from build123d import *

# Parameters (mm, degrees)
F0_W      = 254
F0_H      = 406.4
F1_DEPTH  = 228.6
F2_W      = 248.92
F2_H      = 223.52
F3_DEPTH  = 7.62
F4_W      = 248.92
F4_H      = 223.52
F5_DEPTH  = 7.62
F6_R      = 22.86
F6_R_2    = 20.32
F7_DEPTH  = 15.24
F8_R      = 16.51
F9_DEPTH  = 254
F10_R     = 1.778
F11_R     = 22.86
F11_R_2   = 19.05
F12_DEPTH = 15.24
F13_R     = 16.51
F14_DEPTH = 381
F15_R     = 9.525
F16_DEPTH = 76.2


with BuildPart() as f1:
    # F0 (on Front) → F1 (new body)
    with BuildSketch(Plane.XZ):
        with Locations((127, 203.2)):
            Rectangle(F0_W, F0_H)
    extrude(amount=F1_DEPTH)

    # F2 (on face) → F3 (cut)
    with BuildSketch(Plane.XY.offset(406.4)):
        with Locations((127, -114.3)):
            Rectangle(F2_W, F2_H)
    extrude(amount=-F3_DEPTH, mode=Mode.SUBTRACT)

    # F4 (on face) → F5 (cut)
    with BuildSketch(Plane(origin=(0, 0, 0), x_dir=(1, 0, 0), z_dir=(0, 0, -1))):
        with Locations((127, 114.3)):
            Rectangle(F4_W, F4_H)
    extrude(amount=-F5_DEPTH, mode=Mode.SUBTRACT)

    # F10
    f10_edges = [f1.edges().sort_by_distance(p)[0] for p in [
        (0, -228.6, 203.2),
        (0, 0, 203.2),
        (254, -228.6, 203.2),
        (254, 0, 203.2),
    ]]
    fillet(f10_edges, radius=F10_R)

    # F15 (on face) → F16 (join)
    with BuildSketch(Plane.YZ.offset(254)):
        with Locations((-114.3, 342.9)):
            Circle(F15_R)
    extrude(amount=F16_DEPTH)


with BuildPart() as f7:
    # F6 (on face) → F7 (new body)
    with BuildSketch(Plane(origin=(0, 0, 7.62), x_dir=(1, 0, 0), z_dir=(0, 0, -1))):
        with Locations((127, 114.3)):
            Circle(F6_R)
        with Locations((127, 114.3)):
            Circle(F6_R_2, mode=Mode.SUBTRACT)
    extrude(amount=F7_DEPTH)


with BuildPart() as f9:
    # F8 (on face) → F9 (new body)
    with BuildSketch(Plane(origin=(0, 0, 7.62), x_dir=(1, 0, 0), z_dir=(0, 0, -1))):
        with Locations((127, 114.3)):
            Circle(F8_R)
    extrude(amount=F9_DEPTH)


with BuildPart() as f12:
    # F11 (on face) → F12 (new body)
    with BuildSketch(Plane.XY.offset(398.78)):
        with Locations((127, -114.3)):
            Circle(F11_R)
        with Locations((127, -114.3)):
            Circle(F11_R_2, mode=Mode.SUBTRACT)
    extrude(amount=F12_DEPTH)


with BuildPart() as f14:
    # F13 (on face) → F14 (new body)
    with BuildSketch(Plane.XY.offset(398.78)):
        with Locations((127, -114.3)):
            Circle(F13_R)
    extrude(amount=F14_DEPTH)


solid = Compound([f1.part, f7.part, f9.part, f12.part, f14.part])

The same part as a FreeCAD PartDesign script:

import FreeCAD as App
import Part
import Sketcher
Q = App.Units.Quantity


def edges_at(feature, points):
    """Names of the edges that pass closest to the given points."""
    edges = feature.Shape.Edges
    near = lambda p: min(range(len(edges)), key=lambda i: edges[i].distToShape(Part.Vertex(*p))[0])
    return sorted({f"Edge{near(p) + 1}" for p in points})

doc = App.newDocument("Part")
body = doc.addObject("PartDesign::Body", "Body")

# Sketch on XZ plane
sketch1 = body.newObject("Sketcher::SketchObject", "Sketch")
sketch1.AttachmentSupport = (doc.getObject("XZ_Plane"), [""])
sketch1.MapMode = "FlatFace"
sketch1.addGeometry(Part.LineSegment(App.Vector(0, 406.4, 0), App.Vector(0, 0, 0)), False)
sketch1.addGeometry(Part.LineSegment(App.Vector(0, 0, 0), App.Vector(254, 0, 0)), False)
sketch1.addGeometry(Part.LineSegment(App.Vector(254, 0, 0), App.Vector(254, 406.4, 0)), False)
sketch1.addGeometry(Part.LineSegment(App.Vector(254, 406.4, 0), App.Vector(0, 406.4, 0)), False)
sketch1.addConstraint(Sketcher.Constraint("Coincident", 0, 2, 1, 1))
sketch1.addConstraint(Sketcher.Constraint("Coincident", 1, 2, 2, 1))
sketch1.addConstraint(Sketcher.Constraint("Coincident", 2, 2, 3, 1))
sketch1.addConstraint(Sketcher.Constraint("Coincident", 3, 2, 0, 1))
sketch1.addConstraint(Sketcher.Constraint("Vertical", 0))
sketch1.addConstraint(Sketcher.Constraint("Horizontal", 1))
sketch1.addConstraint(Sketcher.Constraint("Vertical", 2))
sketch1.addConstraint(Sketcher.Constraint("Horizontal", 3))
sketch1.addConstraint(Sketcher.Constraint("Coincident", 0, 2, -1, 1))
sketch1.addConstraint(Sketcher.Constraint("DistanceX", 1, 1, 1, 2, Q("10 in")))
sketch1.addConstraint(Sketcher.Constraint("DistanceY", 0, 2, 0, 1, Q("16 in")))
pad1 = body.newObject("PartDesign::Pad", "Pad")
pad1.Profile = sketch1
pad1.Length = Q("9 in")

# Sketch on XY plane
sketch2 = body.newObject("Sketcher::SketchObject", "Sketch001")
sketch2.AttachmentSupport = (doc.getObject("XY_Plane"), [""])
sketch2.MapMode = "FlatFace"
sketch2.AttachmentOffset = App.Placement(App.Vector(0, 0, 16 * 25.4), App.Rotation())
sketch2.addGeometry(Part.LineSegment(App.Vector(2.54, -2.54, 0), App.Vector(2.54, -226.06, 0)), False)
sketch2.addGeometry(Part.LineSegment(App.Vector(2.54, -226.06, 0), App.Vector(251.46, -226.06, 0)), False)
sketch2.addGeometry(Part.LineSegment(App.Vector(251.46, -226.06, 0), App.Vector(251.46, -2.54, 0)), False)
sketch2.addGeometry(Part.LineSegment(App.Vector(251.46, -2.54, 0), App.Vector(2.54, -2.54, 0)), False)
sketch2.addConstraint(Sketcher.Constraint("Coincident", 0, 2, 1, 1))
sketch2.addConstraint(Sketcher.Constraint("Coincident", 1, 2, 2, 1))
sketch2.addConstraint(Sketcher.Constraint("Coincident", 2, 2, 3, 1))
sketch2.addConstraint(Sketcher.Constraint("Coincident", 3, 2, 0, 1))
sketch2.addConstraint(Sketcher.Constraint("Vertical", 0))
sketch2.addConstraint(Sketcher.Constraint("Horizontal", 1))
sketch2.addConstraint(Sketcher.Constraint("Vertical", 2))
sketch2.addConstraint(Sketcher.Constraint("Horizontal", 3))
sketch2.addConstraint(Sketcher.Constraint("DistanceX", 1, 1, 1, 2, Q("9.8 in")))
sketch2.addConstraint(Sketcher.Constraint("DistanceY", 0, 2, 0, 1, Q("8.8 in")))
sketch2.addConstraint(Sketcher.Constraint("DistanceX", -1, 1, 0, 2, Q("0.1 in")))
sketch2.addConstraint(Sketcher.Constraint("DistanceY", 0, 2, -1, 1, Q("8.9 in")))
pocket1 = body.newObject("PartDesign::Pocket", "Pocket")
pocket1.Profile = sketch2
pocket1.Length = Q("0.3 in")

# Sketch on XY plane
sketch3 = body.newObject("Sketcher::SketchObject", "Sketch002")
sketch3.AttachmentSupport = (doc.getObject("XY_Plane"), [""])
sketch3.MapMode = "FlatFace"
sketch3.addGeometry(Part.LineSegment(App.Vector(2.54, -226.06, 0), App.Vector(2.54, -2.54, 0)), False)
sketch3.addGeometry(Part.LineSegment(App.Vector(2.54, -2.54, 0), App.Vector(251.46, -2.54, 0)), False)
sketch3.addGeometry(Part.LineSegment(App.Vector(251.46, -2.54, 0), App.Vector(251.46, -226.06, 0)), False)
sketch3.addGeometry(Part.LineSegment(App.Vector(251.46, -226.06, 0), App.Vector(2.54, -226.06, 0)), False)
sketch3.addConstraint(Sketcher.Constraint("Coincident", 0, 2, 1, 1))
sketch3.addConstraint(Sketcher.Constraint("Coincident", 1, 2, 2, 1))
sketch3.addConstraint(Sketcher.Constraint("Coincident", 2, 2, 3, 1))
sketch3.addConstraint(Sketcher.Constraint("Coincident", 3, 2, 0, 1))
sketch3.addConstraint(Sketcher.Constraint("Vertical", 0))
sketch3.addConstraint(Sketcher.Constraint("Horizontal", 1))
sketch3.addConstraint(Sketcher.Constraint("Vertical", 2))
sketch3.addConstraint(Sketcher.Constraint("Horizontal", 3))
sketch3.addConstraint(Sketcher.Constraint("DistanceX", 1, 1, 1, 2, Q("9.8 in")))
sketch3.addConstraint(Sketcher.Constraint("DistanceY", 0, 1, 0, 2, Q("8.8 in")))
sketch3.addConstraint(Sketcher.Constraint("DistanceX", -1, 1, 0, 2, Q("0.1 in")))
sketch3.addConstraint(Sketcher.Constraint("DistanceY", 0, 2, -1, 1, Q("0.1 in")))
pocket2 = body.newObject("PartDesign::Pocket", "Pocket001")
pocket2.Profile = sketch3
pocket2.Length = Q("0.3 in")
pocket2.Reversed = True
doc.recompute()

fillet = body.newObject("PartDesign::Fillet", "Fillet")
fillet.Base = (pocket2, edges_at(pocket2, [
    (0, -228.6, 203.2),
    (0, 0, 203.2),
    (254, -228.6, 203.2),
    (254, 0, 203.2),
]))
fillet.Radius = Q("0.07 in")

# Sketch on YZ plane
sketch4 = body.newObject("Sketcher::SketchObject", "Sketch003")
sketch4.AttachmentSupport = (doc.getObject("YZ_Plane"), [""])
sketch4.MapMode = "FlatFace"
sketch4.AttachmentOffset = App.Placement(App.Vector(0, 0, 10 * 25.4), App.Rotation())
sketch4.addGeometry(Part.Circle(App.Vector(-114.3, 342.9, 0), App.Vector(0, 0, 1), 9.525), False)
sketch4.addConstraint(Sketcher.Constraint("Diameter", 0, Q("0.75 in")))
sketch4.addConstraint(Sketcher.Constraint("DistanceX", 0, 3, -1, 1, Q("4.5 in")))
sketch4.addConstraint(Sketcher.Constraint("DistanceY", -1, 1, 0, 3, Q("13.5 in")))
pad2 = body.newObject("PartDesign::Pad", "Pad001")
pad2.Profile = sketch4
pad2.Length = Q("3 in")
body2 = doc.addObject("PartDesign::Body", "Body001")

# Sketch on XY plane
sketch5 = body2.newObject("Sketcher::SketchObject", "Sketch004")
sketch5.AttachmentSupport = (doc.getObject("XY_Plane001"), [""])
sketch5.MapMode = "FlatFace"
sketch5.AttachmentOffset = App.Placement(App.Vector(0, 0, 0.3 * 25.4), App.Rotation())
sketch5.addGeometry(Part.Circle(App.Vector(127, -114.3, 0), App.Vector(0, 0, 1), 22.86), False)
sketch5.addGeometry(Part.Circle(App.Vector(127, -114.3, 0), App.Vector(0, 0, 1), 20.32), False)
sketch5.addConstraint(Sketcher.Constraint("Coincident", 1, 3, 0, 3))
sketch5.addConstraint(Sketcher.Constraint("Diameter", 0, Q("1.8 in")))
sketch5.addConstraint(Sketcher.Constraint("Diameter", 1, Q("1.6 in")))
sketch5.addConstraint(Sketcher.Constraint("DistanceX", -1, 1, 0, 3, Q("5 in")))
sketch5.addConstraint(Sketcher.Constraint("DistanceY", 0, 3, -1, 1, Q("4.5 in")))
pad3 = body2.newObject("PartDesign::Pad", "Pad002")
pad3.Profile = sketch5
pad3.Length = Q("0.6 in")
pad3.Reversed = True
body3 = doc.addObject("PartDesign::Body", "Body002")

# Sketch on XY plane
sketch6 = body3.newObject("Sketcher::SketchObject", "Sketch005")
sketch6.AttachmentSupport = (doc.getObject("XY_Plane002"), [""])
sketch6.MapMode = "FlatFace"
sketch6.AttachmentOffset = App.Placement(App.Vector(0, 0, 0.3 * 25.4), App.Rotation())
sketch6.addGeometry(Part.Circle(App.Vector(127, -114.3, 0), App.Vector(0, 0, 1), 16.51), False)
sketch6.addConstraint(Sketcher.Constraint("Diameter", 0, Q("1.3 in")))
sketch6.addConstraint(Sketcher.Constraint("DistanceX", -1, 1, 0, 3, Q("5 in")))
sketch6.addConstraint(Sketcher.Constraint("DistanceY", 0, 3, -1, 1, Q("4.5 in")))
pad4 = body3.newObject("PartDesign::Pad", "Pad003")
pad4.Profile = sketch6
pad4.Length = Q("10 in")
pad4.Reversed = True
body4 = doc.addObject("PartDesign::Body", "Body003")

# Sketch on XY plane
sketch7 = body4.newObject("Sketcher::SketchObject", "Sketch006")
sketch7.AttachmentSupport = (doc.getObject("XY_Plane003"), [""])
sketch7.MapMode = "FlatFace"
sketch7.AttachmentOffset = App.Placement(App.Vector(0, 0, 15.7 * 25.4), App.Rotation())
sketch7.addGeometry(Part.Circle(App.Vector(127, -114.3, 0), App.Vector(0, 0, 1), 22.86), False)
sketch7.addGeometry(Part.Circle(App.Vector(127, -114.3, 0), App.Vector(0, 0, 1), 19.05), False)
sketch7.addConstraint(Sketcher.Constraint("Coincident", 1, 3, 0, 3))
sketch7.addConstraint(Sketcher.Constraint("Diameter", 0, Q("1.8 in")))
sketch7.addConstraint(Sketcher.Constraint("Diameter", 1, Q("1.5 in")))
sketch7.addConstraint(Sketcher.Constraint("DistanceX", -1, 1, 0, 3, Q("5 in")))
sketch7.addConstraint(Sketcher.Constraint("DistanceY", 0, 3, -1, 1, Q("4.5 in")))
pad5 = body4.newObject("PartDesign::Pad", "Pad004")
pad5.Profile = sketch7
pad5.Length = Q("0.6 in")
body5 = doc.addObject("PartDesign::Body", "Body004")

# Sketch on XY plane
sketch8 = body5.newObject("Sketcher::SketchObject", "Sketch007")
sketch8.AttachmentSupport = (doc.getObject("XY_Plane004"), [""])
sketch8.MapMode = "FlatFace"
sketch8.AttachmentOffset = App.Placement(App.Vector(0, 0, 15.7 * 25.4), App.Rotation())
sketch8.addGeometry(Part.Circle(App.Vector(127, -114.3, 0), App.Vector(0, 0, 1), 16.51), False)
sketch8.addConstraint(Sketcher.Constraint("Diameter", 0, Q("1.3 in")))
sketch8.addConstraint(Sketcher.Constraint("DistanceX", -1, 1, 0, 3, Q("5 in")))
sketch8.addConstraint(Sketcher.Constraint("DistanceY", 0, 3, -1, 1, Q("4.5 in")))
pad6 = body5.newObject("PartDesign::Pad", "Pad005")
pad6.Profile = sketch8
pad6.Length = Q("15 in")

doc.recompute()
